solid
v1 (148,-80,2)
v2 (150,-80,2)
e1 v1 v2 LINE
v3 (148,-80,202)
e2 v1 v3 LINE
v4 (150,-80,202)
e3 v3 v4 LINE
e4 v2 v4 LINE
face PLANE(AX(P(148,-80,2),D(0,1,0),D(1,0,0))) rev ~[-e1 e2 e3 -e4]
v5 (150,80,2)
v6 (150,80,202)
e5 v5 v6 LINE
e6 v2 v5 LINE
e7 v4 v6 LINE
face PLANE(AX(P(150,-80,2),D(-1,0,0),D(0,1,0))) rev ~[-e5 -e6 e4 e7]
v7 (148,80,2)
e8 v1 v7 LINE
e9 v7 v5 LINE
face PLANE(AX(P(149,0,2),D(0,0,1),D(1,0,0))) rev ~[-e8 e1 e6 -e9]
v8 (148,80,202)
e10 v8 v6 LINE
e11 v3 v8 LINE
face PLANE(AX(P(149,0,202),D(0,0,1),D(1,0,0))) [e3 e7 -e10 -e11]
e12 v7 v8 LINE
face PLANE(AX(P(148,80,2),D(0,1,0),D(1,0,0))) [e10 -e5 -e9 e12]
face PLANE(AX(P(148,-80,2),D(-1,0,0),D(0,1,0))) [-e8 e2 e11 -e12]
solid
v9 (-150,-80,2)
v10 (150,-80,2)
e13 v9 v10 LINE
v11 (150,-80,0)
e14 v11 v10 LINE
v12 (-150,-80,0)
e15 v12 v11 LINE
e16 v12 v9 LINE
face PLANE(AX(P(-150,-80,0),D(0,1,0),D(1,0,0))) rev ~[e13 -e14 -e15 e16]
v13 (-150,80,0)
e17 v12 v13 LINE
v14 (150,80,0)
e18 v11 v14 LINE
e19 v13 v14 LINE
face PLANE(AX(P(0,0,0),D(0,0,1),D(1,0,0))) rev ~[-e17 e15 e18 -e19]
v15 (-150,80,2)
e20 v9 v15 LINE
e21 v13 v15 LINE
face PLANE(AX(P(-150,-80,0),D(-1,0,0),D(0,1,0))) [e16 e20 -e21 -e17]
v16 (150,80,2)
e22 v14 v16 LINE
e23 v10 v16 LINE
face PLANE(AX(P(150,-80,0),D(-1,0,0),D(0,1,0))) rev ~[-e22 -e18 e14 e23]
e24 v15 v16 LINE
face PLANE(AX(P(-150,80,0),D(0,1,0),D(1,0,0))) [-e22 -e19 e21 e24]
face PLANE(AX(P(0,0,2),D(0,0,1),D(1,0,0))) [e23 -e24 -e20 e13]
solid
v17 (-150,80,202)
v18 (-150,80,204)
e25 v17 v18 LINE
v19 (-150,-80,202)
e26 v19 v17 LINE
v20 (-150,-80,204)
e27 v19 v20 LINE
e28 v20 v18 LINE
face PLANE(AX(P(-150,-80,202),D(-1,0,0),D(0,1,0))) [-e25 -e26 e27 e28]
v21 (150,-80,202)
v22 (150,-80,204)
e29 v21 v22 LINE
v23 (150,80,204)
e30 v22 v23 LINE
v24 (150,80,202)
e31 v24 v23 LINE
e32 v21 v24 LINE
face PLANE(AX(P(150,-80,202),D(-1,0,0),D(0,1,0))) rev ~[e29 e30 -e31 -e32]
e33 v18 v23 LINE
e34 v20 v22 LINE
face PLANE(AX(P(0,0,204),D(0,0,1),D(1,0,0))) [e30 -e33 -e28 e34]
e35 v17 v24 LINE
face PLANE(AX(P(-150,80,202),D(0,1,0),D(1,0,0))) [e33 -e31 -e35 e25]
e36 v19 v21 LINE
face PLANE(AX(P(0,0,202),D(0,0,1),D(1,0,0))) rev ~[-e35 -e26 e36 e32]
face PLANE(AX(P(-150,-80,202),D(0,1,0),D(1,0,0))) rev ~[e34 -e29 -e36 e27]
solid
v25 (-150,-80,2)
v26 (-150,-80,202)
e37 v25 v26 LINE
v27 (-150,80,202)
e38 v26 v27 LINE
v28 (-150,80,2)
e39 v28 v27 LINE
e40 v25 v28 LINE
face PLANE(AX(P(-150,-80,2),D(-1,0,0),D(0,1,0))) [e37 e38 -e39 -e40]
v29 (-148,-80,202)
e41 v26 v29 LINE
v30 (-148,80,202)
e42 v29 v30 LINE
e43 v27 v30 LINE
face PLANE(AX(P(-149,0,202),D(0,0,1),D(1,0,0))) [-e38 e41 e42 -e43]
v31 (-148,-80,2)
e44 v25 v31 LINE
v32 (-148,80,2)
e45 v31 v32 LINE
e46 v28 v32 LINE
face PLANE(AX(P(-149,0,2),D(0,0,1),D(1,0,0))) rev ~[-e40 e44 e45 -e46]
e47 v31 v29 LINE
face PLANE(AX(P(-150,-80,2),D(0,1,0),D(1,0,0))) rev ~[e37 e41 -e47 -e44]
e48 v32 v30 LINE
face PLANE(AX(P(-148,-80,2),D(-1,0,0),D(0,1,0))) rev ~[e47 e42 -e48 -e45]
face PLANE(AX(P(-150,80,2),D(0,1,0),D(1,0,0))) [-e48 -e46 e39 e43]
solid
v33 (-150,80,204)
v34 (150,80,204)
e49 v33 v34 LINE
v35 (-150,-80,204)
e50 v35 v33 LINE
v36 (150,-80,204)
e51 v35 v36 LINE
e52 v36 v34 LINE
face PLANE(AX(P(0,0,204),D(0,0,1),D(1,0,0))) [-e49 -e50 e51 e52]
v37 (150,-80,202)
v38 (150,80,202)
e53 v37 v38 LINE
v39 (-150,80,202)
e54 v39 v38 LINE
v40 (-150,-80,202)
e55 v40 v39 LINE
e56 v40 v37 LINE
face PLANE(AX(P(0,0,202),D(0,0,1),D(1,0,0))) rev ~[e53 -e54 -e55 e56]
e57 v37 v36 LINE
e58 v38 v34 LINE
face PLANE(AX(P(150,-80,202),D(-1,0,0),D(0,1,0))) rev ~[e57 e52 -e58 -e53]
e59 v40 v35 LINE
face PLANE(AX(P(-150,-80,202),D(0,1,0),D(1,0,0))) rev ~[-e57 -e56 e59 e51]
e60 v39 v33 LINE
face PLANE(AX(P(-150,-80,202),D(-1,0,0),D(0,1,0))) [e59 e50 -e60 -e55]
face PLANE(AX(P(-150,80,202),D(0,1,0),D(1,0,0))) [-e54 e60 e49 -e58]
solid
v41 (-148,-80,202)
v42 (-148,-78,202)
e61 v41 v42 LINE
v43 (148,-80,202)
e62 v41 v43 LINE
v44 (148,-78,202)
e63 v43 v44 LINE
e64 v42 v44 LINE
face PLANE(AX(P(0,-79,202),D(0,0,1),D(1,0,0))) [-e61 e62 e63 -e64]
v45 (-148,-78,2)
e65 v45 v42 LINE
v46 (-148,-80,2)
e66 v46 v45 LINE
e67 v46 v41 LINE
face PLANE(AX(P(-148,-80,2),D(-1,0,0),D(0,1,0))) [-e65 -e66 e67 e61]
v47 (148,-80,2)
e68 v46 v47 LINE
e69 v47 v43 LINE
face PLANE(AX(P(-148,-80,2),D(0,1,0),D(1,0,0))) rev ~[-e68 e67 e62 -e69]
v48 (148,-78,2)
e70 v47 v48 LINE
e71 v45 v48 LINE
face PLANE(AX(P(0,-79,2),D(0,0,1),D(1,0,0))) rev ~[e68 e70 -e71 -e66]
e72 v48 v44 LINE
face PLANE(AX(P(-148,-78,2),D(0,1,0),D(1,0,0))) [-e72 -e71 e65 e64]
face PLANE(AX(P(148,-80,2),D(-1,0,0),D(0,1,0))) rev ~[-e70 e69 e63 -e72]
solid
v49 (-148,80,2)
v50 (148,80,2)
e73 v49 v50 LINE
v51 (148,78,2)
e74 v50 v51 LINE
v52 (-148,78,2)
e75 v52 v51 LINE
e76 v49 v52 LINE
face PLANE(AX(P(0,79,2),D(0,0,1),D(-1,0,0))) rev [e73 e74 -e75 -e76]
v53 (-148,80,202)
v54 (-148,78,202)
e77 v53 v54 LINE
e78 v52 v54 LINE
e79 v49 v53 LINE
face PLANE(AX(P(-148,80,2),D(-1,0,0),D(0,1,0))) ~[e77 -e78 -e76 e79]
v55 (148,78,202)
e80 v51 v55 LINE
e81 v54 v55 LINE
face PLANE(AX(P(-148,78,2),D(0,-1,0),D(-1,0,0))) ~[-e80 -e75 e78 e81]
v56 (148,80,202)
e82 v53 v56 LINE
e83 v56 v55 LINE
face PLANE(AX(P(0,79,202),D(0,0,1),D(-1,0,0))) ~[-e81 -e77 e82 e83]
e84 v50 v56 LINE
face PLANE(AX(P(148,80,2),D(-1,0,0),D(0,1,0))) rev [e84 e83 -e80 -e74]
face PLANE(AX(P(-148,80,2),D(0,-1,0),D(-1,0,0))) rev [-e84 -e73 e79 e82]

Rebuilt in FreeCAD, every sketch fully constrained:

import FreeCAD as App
import Part
import Sketcher
Q = App.Units.Quantity


def add_polygon(sketch, points):
    """Adds a closed chain of lines whose ends are joined by coincident constraints."""
    first, n = sketch.GeometryCount, len(points)
    for a, b in zip(points, points[1:] + points[:1]):
        sketch.addGeometry(Part.LineSegment(App.Vector(*a, 0), App.Vector(*b, 0)), False)
    for i in range(n):
        sketch.addConstraint(Sketcher.Constraint("Coincident", first + i, 2, first + (i + 1) % n, 1))

doc = App.newDocument("Part")
body = doc.addObject("PartDesign::Body", "Body")

sketch1 = body.newObject("Sketcher::SketchObject", "Sketch")
sketch1.AttachmentSupport = (doc.getObject("XY_Plane"), [""])
sketch1.MapMode = "FlatFace"
add_polygon(sketch1, [(-150, 80), (-150, -80), (150, -80), (150, 80)])
sketch1.addConstraint([
    Sketcher.Constraint("Vertical", 0),
    Sketcher.Constraint("Horizontal", 1),
    Sketcher.Constraint("Vertical", 2),
    Sketcher.Constraint("Horizontal", 3),
    Sketcher.Constraint("Symmetric", 0, 2, 2, 2, -1, 1),
    Sketcher.Constraint("DistanceX", 1, 1, 1, 2, Q("300 mm")),
    Sketcher.Constraint("DistanceY", 0, 2, 0, 1, Q("160 mm")),
])
pad1 = body.newObject("PartDesign::Pad", "Pad")
pad1.Profile = sketch1
pad1.Length = 2
body2 = doc.addObject("PartDesign::Body", "Body001")

sketch2 = body2.newObject("Sketcher::SketchObject", "Sketch001")
sketch2.AttachmentSupport = (doc.getObject("XY_Plane001"), [""])
sketch2.MapMode = "FlatFace"
sketch2.AttachmentOffset = App.Placement(App.Vector(0, 0, 2), App.Rotation())
add_polygon(sketch2, [(-150, 80), (-150, -80), (-148, -80), (-148, 80)])
sketch2.addConstraint([
    Sketcher.Constraint("Vertical", 0),
    Sketcher.Constraint("Horizontal", 1),
    Sketcher.Constraint("Vertical", 2),
    Sketcher.Constraint("Horizontal", 3),
    Sketcher.Constraint("DistanceX", 1, 1, 1, 2, Q("2 mm")),
    Sketcher.Constraint("DistanceY", 0, 2, 0, 1, Q("160 mm")),
    Sketcher.Constraint("DistanceX", 0, 2, -1, 1, Q("150 mm")),
    Sketcher.Constraint("DistanceY", 0, 2, -1, 1, Q("80 mm")),
])
pad2 = body2.newObject("PartDesign::Pad", "Pad001")
pad2.Profile = sketch2
pad2.Length = 200
body3 = doc.addObject("PartDesign::Body", "Body002")

sketch3 = body3.newObject("Sketcher::SketchObject", "Sketch002")
sketch3.AttachmentSupport = (doc.getObject("XY_Plane002"), [""])
sketch3.MapMode = "FlatFace"
sketch3.AttachmentOffset = App.Placement(App.Vector(0, 0, 2), App.Rotation())
add_polygon(sketch3, [(148, 80), (148, -80), (150, -80), (150, 80)])
sketch3.addConstraint([
    Sketcher.Constraint("Vertical", 0),
    Sketcher.Constraint("Horizontal", 1),
    Sketcher.Constraint("Vertical", 2),
    Sketcher.Constraint("Horizontal", 3),
    Sketcher.Constraint("DistanceX", 1, 1, 1, 2, Q("2 mm")),
    Sketcher.Constraint("DistanceY", 0, 2, 0, 1, Q("160 mm")),
    Sketcher.Constraint("DistanceX", -1, 1, 0, 2, Q("148 mm")),
    Sketcher.Constraint("DistanceY", 0, 2, -1, 1, Q("80 mm")),
])
pad3 = body3.newObject("PartDesign::Pad", "Pad002")
pad3.Profile = sketch3
pad3.Length = 200
body4 = doc.addObject("PartDesign::Body", "Body003")

sketch4 = body4.newObject("Sketcher::SketchObject", "Sketch003")
sketch4.AttachmentSupport = (doc.getObject("XY_Plane003"), [""])
sketch4.MapMode = "FlatFace"
sketch4.AttachmentOffset = App.Placement(App.Vector(0, 0, 202), App.Rotation())
add_polygon(sketch4, [(-150, 80), (-150, -80), (150, -80), (150, 80)])
sketch4.addConstraint([
    Sketcher.Constraint("Vertical", 0),
    Sketcher.Constraint("Horizontal", 1),
    Sketcher.Constraint("Vertical", 2),
    Sketcher.Constraint("Horizontal", 3),
    Sketcher.Constraint("Symmetric", 0, 2, 2, 2, -1, 1),
    Sketcher.Constraint("DistanceX", 1, 1, 1, 2, Q("300 mm")),
    Sketcher.Constraint("DistanceY", 0, 2, 0, 1, Q("160 mm")),
])
pad4 = body4.newObject("PartDesign::Pad", "Pad003")
pad4.Profile = sketch4
pad4.Length = 2
body5 = doc.addObject("PartDesign::Body", "Body004")

sketch5 = body5.newObject("Sketcher::SketchObject", "Sketch004")
sketch5.AttachmentSupport = (doc.getObject("XY_Plane004"), [""])
sketch5.MapMode = "FlatFace"
sketch5.AttachmentOffset = App.Placement(App.Vector(0, 0, 2), App.Rotation())
add_polygon(sketch5, [(-148, -78), (-148, -80), (148, -80), (148, -78)])
sketch5.addConstraint([
    Sketcher.Constraint("Vertical", 0),
    Sketcher.Constraint("Horizontal", 1),
    Sketcher.Constraint("Vertical", 2),
    Sketcher.Constraint("Horizontal", 3),
    Sketcher.Constraint("DistanceX", 1, 1, 1, 2, Q("296 mm")),
    Sketcher.Constraint("DistanceY", 0, 2, 0, 1, Q("2 mm")),
    Sketcher.Constraint("DistanceX", 0, 2, -1, 1, Q("148 mm")),
    Sketcher.Constraint("DistanceY", 0, 2, -1, 1, Q("80 mm")),
])
pad5 = body5.newObject("PartDesign::Pad", "Pad004")
pad5.Profile = sketch5
pad5.Length = 200
body6 = doc.addObject("PartDesign::Body", "Body005")
doc.recompute()

mirroring = doc.addObject("Part::Mirroring", "Mirroring")
mirroring.Source = body5
mirroring.Base = App.Vector(0, 0, 0)
mirroring.Normal = App.Vector(0, -1, 0)
body6.BaseFeature = mirroring
doc.recompute()
body7 = doc.addObject("PartDesign::Body", "Body006")

sketch6 = body7.newObject("Sketcher::SketchObject", "Sketch005")
sketch6.AttachmentSupport = (doc.getObject("XY_Plane006"), [""])
sketch6.MapMode = "FlatFace"
sketch6.AttachmentOffset = App.Placement(App.Vector(0, 0, 202), App.Rotation())
add_polygon(sketch6, [(-150, 80), (-150, -80), (150, -80), (150, 80)])
sketch6.addConstraint([
    Sketcher.Constraint("Vertical", 0),
    Sketcher.Constraint("Horizontal", 1),
    Sketcher.Constraint("Vertical", 2),
    Sketcher.Constraint("Horizontal", 3),
    Sketcher.Constraint("Symmetric", 0, 2, 2, 2, -1, 1),
    Sketcher.Constraint("DistanceX", 1, 1, 1, 2, Q("300 mm")),
    Sketcher.Constraint("DistanceY", 0, 2, 0, 1, Q("160 mm")),
])
pad6 = body7.newObject("PartDesign::Pad", "Pad005")
pad6.Profile = sketch6
pad6.Length = 2
mirroring.Visibility = False

doc.recompute()
